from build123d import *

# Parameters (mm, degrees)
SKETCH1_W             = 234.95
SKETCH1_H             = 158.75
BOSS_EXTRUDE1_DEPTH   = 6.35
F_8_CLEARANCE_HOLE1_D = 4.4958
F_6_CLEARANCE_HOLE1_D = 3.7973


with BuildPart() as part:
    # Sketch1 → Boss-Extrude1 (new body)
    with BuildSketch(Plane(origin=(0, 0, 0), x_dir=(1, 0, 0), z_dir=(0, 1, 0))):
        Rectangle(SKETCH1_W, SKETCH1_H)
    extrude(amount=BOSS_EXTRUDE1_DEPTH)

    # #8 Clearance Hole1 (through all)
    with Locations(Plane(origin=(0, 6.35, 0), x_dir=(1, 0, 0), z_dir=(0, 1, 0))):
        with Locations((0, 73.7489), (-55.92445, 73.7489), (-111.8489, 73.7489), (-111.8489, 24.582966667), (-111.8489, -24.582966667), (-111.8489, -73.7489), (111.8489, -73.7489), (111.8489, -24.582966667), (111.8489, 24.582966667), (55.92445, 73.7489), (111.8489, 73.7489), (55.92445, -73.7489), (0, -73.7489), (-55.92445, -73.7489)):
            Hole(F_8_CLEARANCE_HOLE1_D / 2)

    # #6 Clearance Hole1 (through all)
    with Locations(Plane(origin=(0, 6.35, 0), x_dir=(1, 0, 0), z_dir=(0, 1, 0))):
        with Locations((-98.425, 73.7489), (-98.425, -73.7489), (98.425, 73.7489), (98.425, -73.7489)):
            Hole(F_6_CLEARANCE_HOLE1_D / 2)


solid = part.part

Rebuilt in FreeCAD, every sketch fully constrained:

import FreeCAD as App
import Part
import Sketcher

V = App.Vector
Q = App.Units.Quantity


def add_polygon(sketch, points):
    """Adds a closed chain of lines whose ends are joined by coincident constraints."""
    first, n = sketch.GeometryCount, len(points)
    for a, b in zip(points, points[1:] + points[:1]):
        sketch.addGeometry(Part.LineSegment(App.Vector(*a, 0), App.Vector(*b, 0)), False)
    for i in range(n):
        sketch.addConstraint(Sketcher.Constraint("Coincident", first + i, 2, first + (i + 1) % n, 1))

doc = App.newDocument("Part")
body = doc.addObject("PartDesign::Body", "Body")

sketch1 = body.newObject("Sketcher::SketchObject", "Sketch")
sketch1.AttachmentSupport = (doc.getObject("XZ_Plane"), [""])
sketch1.MapMode = "FlatFace"
add_polygon(sketch1, [(-117, -79), (-117, 79), (117, 79), (117, -79)])
sketch1.addConstraint(Sketcher.Constraint("Vertical", 0))
sketch1.addConstraint(Sketcher.Constraint("Horizontal", 1))
sketch1.addConstraint(Sketcher.Constraint("Vertical", 2))
sketch1.addConstraint(Sketcher.Constraint("Horizontal", 3))
sketch1.addConstraint(Sketcher.Constraint("Symmetric", 0, 2, 2, 2, -1, 1))
sketch1.addConstraint(Sketcher.Constraint("DistanceX", 1, 1, 1, 2, Q("9.25 in")))
sketch1.addConstraint(Sketcher.Constraint("DistanceY", 0, 1, 0, 2, Q("6.25 in")))
pad1 = body.newObject("PartDesign::Pad", "Pad")
pad1.Profile = sketch1
pad1.Length = Q("0.25 in")
pad1.Reversed = True

sketch2 = body.newObject("Sketcher::SketchObject", "Sketch001")
sketch2.AttachmentSupport = (doc.getObject("XZ_Plane"), [""])
sketch2.MapMode = "FlatFace"
sketch2.AttachmentOffset = App.Placement(V(0, 0, -0.25 * 25.4), App.Rotation())
sketch2.addGeometry(Part.Circle(V(0, -73.7, 0), V(0, 0, 1), 2.2), False)
sketch2.addGeometry(Part.Circle(V(-55.9, -73.7, 0), V(0, 0, 1), 2.2), False)
sketch2.addGeometry(Part.Circle(V(-111.8, -73.7, 0), V(0, 0, 1), 2.2), False)
sketch2.addGeometry(Part.Circle(V(-111.8, -24.6, 0), V(0, 0, 1), 2.2), False)
sketch2.addGeometry(Part.Circle(V(-111.8, 24.6, 0), V(0, 0, 1), 2.2), False)
sketch2.addGeometry(Part.Circle(V(-111.8, 73.7, 0), V(0, 0, 1), 2.2), False)
sketch2.addGeometry(Part.Circle(V(111.8, 73.7, 0), V(0, 0, 1), 2.2), False)
sketch2.addGeometry(Part.Circle(V(111.8, 24.6, 0), V(0, 0, 1), 2.2), False)
sketch2.addGeometry(Part.Circle(V(111.8, -24.6, 0), V(0, 0, 1), 2.2), False)
sketch2.addGeometry(Part.Circle(V(55.9, -73.7, 0), V(0, 0, 1), 2.2), False)
sketch2.addGeometry(Part.Circle(V(111.8, -73.7, 0), V(0, 0, 1), 2.2), False)
sketch2.addGeometry(Part.Circle(V(55.9, 73.7, 0), V(0, 0, 1), 2.2), False)
sketch2.addGeometry(Part.Circle(V(0, 73.7, 0), V(0, 0, 1), 2.2), False)
sketch2.addGeometry(Part.Circle(V(-55.9, 73.7, 0), V(0, 0, 1), 2.2), False)
sketch2.addConstraint(Sketcher.Constraint("Equal", 0, 1))
sketch2.addConstraint(Sketcher.Constraint("Equal", 1, 2))
sketch2.addConstraint(Sketcher.Constraint("Equal", 2, 3))
sketch2.addConstraint(Sketcher.Constraint("Equal", 3, 4))
sketch2.addConstraint(Sketcher.Constraint("Equal", 4, 5))
sketch2.addConstraint(Sketcher.Constraint("Equal", 5, 6))
sketch2.addConstraint(Sketcher.Constraint("Equal", 6, 7))
sketch2.addConstraint(Sketcher.Constraint("Equal", 7, 8))
sketch2.addConstraint(Sketcher.Constraint("Equal", 8, 9))
sketch2.addConstraint(Sketcher.Constraint("Equal", 9, 10))
sketch2.addConstraint(Sketcher.Constraint("Equal", 10, 11))
sketch2.addConstraint(Sketcher.Constraint("Equal", 11, 12))
sketch2.addConstraint(Sketcher.Constraint("Equal", 12, 13))
sketch2.addConstraint(Sketcher.Constraint("Symmetric", 2, 3, 6, 3, -1, 1))
sketch2.addConstraint(Sketcher.Constraint("Symmetric", 3, 3, 7, 3, -1, 1))
sketch2.addConstraint(Sketcher.Constraint("Symmetric", 4, 3, 8, 3, -1, 1))
sketch2.addConstraint(Sketcher.Constraint("Symmetric", 5, 3, 10, 3, -1, 1))
sketch2.addConstraint(Sketcher.Constraint("Symmetric", 1, 3, 11, 3, -1, 1))
sketch2.addConstraint(Sketcher.Constraint("Symmetric", 0, 3, 12, 3, -1, 1))
sketch2.addConstraint(Sketcher.Constraint("Symmetric", 9, 3, 13, 3, -1, 1))
sketch2.addConstraint(Sketcher.Constraint("Symmetric", 5, 3, 6, 3, -2))
sketch2.addConstraint(Sketcher.Constraint("Symmetric", 4, 3, 7, 3, -2))
sketch2.addConstraint(Sketcher.Constraint("Symmetric", 1, 3, 9, 3, -2))
sketch2.addConstraint(Sketcher.Constraint("PointOnObject", 0, 3, -2))
sketch2.addConstraint(Sketcher.Constraint("Horizontal", 0, 3, 1, 3))
sketch2.addConstraint(Sketcher.Constraint("Horizontal", 1, 3, 2, 3))
sketch2.addConstraint(Sketcher.Constraint("Vertical", 2, 3, 3, 3))
sketch2.addConstraint(Sketcher.Constraint("Diameter", 0, Q("0.177 in")))
sketch2.addConstraint(Sketcher.Constraint("DistanceY", 2, 3, 5, 3, Q("5.807 in")))
sketch2.addConstraint(Sketcher.Constraint("DistanceX", 5, 3, 6, 3, Q("8.807 in")))
sketch2.addConstraint(Sketcher.Constraint("DistanceX", 1, 3, 9, 3, Q("4.4035 in")))
sketch2.addConstraint(Sketcher.Constraint("DistanceY", 3, 3, -1, 1, Q("24.582967 mm")))
doc.recompute()
hole = body.newObject("PartDesign::Hole", "Hole")
hole.Profile = sketch2
hole.ThreadType = "None"
hole.Diameter = Q("0.177 in")
hole.DepthType = "ThroughAll"
hole.Reversed = True

sketch3 = body.newObject("Sketcher::SketchObject", "Sketch002")
sketch3.AttachmentSupport = (doc.getObject("XZ_Plane"), [""])
sketch3.MapMode = "FlatFace"
sketch3.AttachmentOffset = App.Placement(V(0, 0, -0.25 * 25.4), App.Rotation())
sketch3.addGeometry(Part.Circle(V(-98.4, -73.7, 0), V(0, 0, 1), 1.9), False)
sketch3.addGeometry(Part.Circle(V(-98.4, 73.7, 0), V(0, 0, 1), 1.9), False)
sketch3.addGeometry(Part.Circle(V(98.4, -73.7, 0), V(0, 0, 1), 1.9), False)
sketch3.addGeometry(Part.Circle(V(98.4, 73.7, 0), V(0, 0, 1), 1.9), False)
sketch3.addConstraint(Sketcher.Constraint("Equal", 0, 1))
sketch3.addConstraint(Sketcher.Constraint("Equal", 1, 2))
sketch3.addConstraint(Sketcher.Constraint("Equal", 2, 3))
sketch3.addConstraint(Sketcher.Constraint("Symmetric", 1, 3, 2, 3, -1, 1))
sketch3.addConstraint(Sketcher.Constraint("Symmetric", 0, 3, 3, 3, -1, 1))
sketch3.addConstraint(Sketcher.Constraint("Symmetric", 0, 3, 2, 3, -2))
sketch3.addConstraint(Sketcher.Constraint("Diameter", 0, Q("0.1495 in")))
sketch3.addConstraint(Sketcher.Constraint("DistanceX", 0, 3, 2, 3, Q("7.75 in")))
sketch3.addConstraint(Sketcher.Constraint("DistanceY", 0, 3, 1, 3, Q("5.807 in")))
doc.recompute()
hole2 = body.newObject("PartDesign::Hole", "Hole001")
hole2.Profile = sketch3
hole2.ThreadType = "None"
hole2.Diameter = Q("0.1495 in")
hole2.DepthType = "ThroughAll"
hole2.Reversed = True

doc.recompute()
